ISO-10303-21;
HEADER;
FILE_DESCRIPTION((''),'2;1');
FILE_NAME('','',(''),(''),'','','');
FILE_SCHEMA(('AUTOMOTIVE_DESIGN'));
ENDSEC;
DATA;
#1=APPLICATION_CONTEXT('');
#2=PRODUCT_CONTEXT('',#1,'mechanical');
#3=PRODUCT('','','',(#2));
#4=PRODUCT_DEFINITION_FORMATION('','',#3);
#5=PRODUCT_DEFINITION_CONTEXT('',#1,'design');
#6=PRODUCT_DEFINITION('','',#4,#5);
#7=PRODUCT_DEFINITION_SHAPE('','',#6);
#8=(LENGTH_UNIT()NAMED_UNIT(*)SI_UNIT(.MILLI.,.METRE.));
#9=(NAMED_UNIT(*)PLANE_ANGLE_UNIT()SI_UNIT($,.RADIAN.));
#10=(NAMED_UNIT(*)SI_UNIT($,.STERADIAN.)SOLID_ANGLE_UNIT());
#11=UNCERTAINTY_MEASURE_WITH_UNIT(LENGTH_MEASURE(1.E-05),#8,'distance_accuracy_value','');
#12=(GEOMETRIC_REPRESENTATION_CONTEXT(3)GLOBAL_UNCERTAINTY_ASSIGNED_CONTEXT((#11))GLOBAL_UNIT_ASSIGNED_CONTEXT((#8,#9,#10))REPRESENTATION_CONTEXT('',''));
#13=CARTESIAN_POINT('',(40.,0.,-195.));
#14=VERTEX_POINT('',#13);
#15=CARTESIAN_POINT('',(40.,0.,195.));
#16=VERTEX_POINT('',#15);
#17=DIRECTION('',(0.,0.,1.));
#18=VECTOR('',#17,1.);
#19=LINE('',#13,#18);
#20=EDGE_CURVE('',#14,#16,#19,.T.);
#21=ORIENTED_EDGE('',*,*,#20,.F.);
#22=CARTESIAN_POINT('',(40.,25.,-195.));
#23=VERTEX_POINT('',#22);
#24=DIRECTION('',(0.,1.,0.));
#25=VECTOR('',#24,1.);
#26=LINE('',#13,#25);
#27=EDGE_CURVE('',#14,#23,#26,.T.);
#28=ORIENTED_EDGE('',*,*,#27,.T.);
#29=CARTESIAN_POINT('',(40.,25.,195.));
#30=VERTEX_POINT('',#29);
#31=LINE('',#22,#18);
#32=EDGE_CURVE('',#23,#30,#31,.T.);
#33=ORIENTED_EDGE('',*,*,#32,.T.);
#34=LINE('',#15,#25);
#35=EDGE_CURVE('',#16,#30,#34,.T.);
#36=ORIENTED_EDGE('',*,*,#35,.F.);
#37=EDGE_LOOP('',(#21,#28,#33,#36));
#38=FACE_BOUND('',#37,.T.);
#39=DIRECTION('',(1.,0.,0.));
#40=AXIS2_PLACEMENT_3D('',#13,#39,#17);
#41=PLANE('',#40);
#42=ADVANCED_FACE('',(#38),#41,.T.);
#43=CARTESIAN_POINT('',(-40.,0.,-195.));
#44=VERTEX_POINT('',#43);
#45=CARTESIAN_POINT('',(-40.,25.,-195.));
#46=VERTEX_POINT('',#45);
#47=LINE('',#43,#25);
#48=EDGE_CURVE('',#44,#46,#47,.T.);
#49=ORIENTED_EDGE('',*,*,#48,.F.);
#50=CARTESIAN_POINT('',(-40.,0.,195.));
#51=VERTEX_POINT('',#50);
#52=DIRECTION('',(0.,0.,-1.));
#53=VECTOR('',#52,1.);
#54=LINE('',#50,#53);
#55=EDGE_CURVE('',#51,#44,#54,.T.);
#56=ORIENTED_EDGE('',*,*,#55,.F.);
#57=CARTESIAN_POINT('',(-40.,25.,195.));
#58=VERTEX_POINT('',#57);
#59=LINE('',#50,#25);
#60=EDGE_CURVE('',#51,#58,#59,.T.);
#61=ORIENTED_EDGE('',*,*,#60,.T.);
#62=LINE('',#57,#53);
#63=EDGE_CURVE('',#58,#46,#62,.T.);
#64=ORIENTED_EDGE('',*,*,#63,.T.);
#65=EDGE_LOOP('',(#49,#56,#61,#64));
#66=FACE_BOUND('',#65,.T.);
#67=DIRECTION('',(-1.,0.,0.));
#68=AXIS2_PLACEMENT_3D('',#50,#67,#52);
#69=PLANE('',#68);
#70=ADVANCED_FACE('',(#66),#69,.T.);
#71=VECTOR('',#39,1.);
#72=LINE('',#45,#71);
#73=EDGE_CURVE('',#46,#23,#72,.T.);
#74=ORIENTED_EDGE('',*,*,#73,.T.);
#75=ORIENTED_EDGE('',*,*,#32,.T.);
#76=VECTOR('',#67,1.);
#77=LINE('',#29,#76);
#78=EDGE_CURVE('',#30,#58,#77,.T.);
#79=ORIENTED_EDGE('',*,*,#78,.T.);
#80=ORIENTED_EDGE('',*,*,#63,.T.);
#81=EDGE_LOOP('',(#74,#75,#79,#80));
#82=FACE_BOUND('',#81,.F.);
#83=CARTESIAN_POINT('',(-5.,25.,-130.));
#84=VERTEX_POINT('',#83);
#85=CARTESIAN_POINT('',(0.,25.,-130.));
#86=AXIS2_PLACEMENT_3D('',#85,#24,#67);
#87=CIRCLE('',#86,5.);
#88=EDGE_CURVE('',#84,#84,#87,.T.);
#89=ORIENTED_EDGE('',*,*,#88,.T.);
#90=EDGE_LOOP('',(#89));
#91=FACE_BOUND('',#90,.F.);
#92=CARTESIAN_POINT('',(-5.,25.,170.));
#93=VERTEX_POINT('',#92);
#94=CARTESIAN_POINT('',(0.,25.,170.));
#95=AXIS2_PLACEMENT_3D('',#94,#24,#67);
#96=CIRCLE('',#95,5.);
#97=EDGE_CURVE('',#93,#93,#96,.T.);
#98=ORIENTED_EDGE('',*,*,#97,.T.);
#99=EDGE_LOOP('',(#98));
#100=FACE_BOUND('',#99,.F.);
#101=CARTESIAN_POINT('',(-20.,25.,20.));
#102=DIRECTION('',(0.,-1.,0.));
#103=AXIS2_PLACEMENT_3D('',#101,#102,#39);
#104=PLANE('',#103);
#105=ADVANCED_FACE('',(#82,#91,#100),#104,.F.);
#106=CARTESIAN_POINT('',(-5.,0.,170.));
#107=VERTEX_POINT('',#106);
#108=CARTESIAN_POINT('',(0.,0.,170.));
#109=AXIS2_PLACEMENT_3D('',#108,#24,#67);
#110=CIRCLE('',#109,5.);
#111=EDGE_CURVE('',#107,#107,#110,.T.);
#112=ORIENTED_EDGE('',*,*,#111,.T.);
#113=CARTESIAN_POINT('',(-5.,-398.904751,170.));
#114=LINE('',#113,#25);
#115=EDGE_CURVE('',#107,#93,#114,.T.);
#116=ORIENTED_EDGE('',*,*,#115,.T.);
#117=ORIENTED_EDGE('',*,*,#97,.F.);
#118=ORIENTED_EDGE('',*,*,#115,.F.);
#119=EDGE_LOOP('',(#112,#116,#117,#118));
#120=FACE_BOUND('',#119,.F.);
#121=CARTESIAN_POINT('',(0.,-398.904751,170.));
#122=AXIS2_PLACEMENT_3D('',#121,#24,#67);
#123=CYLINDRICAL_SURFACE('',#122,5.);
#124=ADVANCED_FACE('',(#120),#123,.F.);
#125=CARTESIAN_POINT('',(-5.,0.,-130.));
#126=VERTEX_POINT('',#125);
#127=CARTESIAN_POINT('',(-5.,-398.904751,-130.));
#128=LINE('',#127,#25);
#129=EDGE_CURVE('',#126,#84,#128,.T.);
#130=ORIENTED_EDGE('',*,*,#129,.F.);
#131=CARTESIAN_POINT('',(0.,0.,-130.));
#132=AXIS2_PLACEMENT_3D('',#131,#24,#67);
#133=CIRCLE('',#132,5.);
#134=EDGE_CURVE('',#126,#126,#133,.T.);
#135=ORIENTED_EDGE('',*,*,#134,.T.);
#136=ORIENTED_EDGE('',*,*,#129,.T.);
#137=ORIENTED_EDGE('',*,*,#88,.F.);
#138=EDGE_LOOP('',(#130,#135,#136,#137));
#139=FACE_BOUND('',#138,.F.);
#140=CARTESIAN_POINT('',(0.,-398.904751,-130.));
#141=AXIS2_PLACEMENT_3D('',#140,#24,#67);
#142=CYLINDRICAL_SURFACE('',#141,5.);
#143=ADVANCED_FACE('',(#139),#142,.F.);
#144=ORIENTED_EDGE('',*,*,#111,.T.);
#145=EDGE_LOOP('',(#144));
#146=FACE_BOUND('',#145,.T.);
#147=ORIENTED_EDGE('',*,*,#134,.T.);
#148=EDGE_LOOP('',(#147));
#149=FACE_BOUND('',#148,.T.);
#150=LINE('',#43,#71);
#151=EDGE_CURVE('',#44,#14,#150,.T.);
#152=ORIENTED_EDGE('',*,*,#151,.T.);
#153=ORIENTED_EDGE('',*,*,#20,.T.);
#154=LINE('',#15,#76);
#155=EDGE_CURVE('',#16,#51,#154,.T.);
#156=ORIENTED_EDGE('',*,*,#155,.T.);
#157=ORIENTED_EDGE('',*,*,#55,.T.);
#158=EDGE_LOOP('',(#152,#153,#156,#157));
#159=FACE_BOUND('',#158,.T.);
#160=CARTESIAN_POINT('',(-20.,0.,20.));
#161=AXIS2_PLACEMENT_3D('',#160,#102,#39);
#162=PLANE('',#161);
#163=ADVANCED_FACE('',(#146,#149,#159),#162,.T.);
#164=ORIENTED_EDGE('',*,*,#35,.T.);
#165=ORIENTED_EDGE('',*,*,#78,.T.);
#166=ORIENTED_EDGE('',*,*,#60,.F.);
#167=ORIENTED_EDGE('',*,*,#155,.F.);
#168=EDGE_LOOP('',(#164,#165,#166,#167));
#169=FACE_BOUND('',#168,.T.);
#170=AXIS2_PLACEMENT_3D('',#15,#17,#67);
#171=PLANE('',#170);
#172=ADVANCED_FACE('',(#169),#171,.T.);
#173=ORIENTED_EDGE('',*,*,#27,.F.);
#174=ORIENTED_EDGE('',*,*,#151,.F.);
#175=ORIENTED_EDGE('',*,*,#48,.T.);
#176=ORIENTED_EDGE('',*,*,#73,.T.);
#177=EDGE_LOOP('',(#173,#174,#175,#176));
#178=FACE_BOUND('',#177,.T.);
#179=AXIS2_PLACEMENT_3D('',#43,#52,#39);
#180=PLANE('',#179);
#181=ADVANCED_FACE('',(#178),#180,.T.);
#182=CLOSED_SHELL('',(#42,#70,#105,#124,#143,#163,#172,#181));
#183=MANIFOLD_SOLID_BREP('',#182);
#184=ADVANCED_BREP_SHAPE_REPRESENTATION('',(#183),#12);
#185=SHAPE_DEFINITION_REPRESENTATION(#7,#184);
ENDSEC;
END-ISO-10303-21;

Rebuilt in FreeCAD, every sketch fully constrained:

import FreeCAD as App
import Part
import Sketcher


def add_polygon(sketch, points):
    """Adds a closed chain of lines whose ends are joined by coincident constraints."""
    first, n = sketch.GeometryCount, len(points)
    for a, b in zip(points, points[1:] + points[:1]):
        sketch.addGeometry(Part.LineSegment(App.Vector(*a, 0), App.Vector(*b, 0)), False)
    for i in range(n):
        sketch.addConstraint(Sketcher.Constraint("Coincident", first + i, 2, first + (i + 1) % n, 1))

doc = App.newDocument("Part")
body = doc.addObject("PartDesign::Body", "Body")

sketch1 = body.newObject("Sketcher::SketchObject", "Sketch")
sketch1.AttachmentSupport = (doc.getObject("XZ_Plane"), [""])
sketch1.MapMode = "FlatFace"
add_polygon(sketch1, [(40, -195), (40, 195), (-40, 195), (-40, -195)])
sketch1.addConstraint([
    Sketcher.Constraint("Vertical", 0),
    Sketcher.Constraint("Horizontal", 1),
    Sketcher.Constraint("Vertical", 2),
    Sketcher.Constraint("Horizontal", 3),
    Sketcher.Constraint("Symmetric", 0, 2, 2, 2, -1, 1),
    Sketcher.Constraint("DistanceX", 1, 2, 1, 1, 80.0),
    Sketcher.Constraint("DistanceY", 0, 1, 0, 2, 390.0),
])
pad1 = body.newObject("PartDesign::Pad", "Pad")
pad1.Profile = sketch1
pad1.Length = 25
pad1.Reversed = True

sketch2 = body.newObject("Sketcher::SketchObject", "Sketch001")
sketch2.AttachmentSupport = (doc.getObject("XZ_Plane"), [""])
sketch2.MapMode = "FlatFace"
sketch2.addGeometry([
    Part.Circle(App.Vector(0, 170, 0), App.Vector(0, 0, 1), 5),
    Part.Circle(App.Vector(0, -130, 0), App.Vector(0, 0, 1), 5),
], False)
sketch2.addConstraint([
    Sketcher.Constraint("Equal", 0, 1),
    Sketcher.Constraint("PointOnObject", 0, 3, -2),
    Sketcher.Constraint("PointOnObject", 1, 3, -2),
    Sketcher.Constraint("Diameter", 0, 10.0),
    Sketcher.Constraint("DistanceY", -1, 1, 0, 3, 170.0),
    Sketcher.Constraint("DistanceY", 1, 3, -1, 1, 130.0),
])
doc.recompute()
hole = body.newObject("PartDesign::Hole", "Hole")
hole.Profile = sketch2
hole.ThreadType = "None"
hole.Diameter = 10
hole.DepthType = "ThroughAll"

doc.recompute()
